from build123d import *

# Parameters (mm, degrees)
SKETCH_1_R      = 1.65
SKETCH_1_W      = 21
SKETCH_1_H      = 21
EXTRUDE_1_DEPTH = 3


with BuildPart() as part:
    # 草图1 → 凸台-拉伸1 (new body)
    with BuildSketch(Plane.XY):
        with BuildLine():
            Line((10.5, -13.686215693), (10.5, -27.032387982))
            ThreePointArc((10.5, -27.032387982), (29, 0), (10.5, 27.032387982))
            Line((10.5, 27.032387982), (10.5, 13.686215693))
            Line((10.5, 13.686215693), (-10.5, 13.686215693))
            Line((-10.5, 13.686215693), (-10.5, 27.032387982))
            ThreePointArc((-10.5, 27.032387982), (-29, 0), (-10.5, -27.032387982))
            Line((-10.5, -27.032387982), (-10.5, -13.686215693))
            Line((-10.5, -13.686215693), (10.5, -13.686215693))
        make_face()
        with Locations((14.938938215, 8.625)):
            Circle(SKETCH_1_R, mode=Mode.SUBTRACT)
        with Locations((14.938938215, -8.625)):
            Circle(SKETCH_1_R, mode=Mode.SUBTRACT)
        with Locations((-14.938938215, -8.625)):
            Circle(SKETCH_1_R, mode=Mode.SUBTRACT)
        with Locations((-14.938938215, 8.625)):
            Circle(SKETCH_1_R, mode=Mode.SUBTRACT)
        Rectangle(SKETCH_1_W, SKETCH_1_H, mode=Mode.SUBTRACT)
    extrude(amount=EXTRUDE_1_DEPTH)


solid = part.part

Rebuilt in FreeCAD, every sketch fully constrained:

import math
import FreeCAD as App
import Part
import Sketcher

V = App.Vector
Q = App.Units.Quantity

doc = App.newDocument("Part")
body = doc.addObject("PartDesign::Body", "Body")

# Sketch on XY plane
sketch1 = body.newObject("Sketcher::SketchObject", "Sketch")
sketch1.AttachmentSupport = (doc.getObject("XY_Plane"), [""])
sketch1.MapMode = "FlatFace"
sketch1.addGeometry([
    Part.LineSegment(V(10.5, -13.7, 0), V(10.5, -27, 0)),  # 0
    Part.ArcOfCircle(Part.Circle(V(0, 0, 0), V(0, 0, 1), 29), math.radians(-69), math.radians(69)),  # 1
    Part.LineSegment(V(10.5, 27, 0), V(10.5, 13.7, 0)),  # 2
    Part.LineSegment(V(10.5, 13.7, 0), V(-10.5, 13.7, 0)),  # 3
    Part.LineSegment(V(-10.5, 13.7, 0), V(-10.5, 27, 0)),  # 4
    Part.ArcOfCircle(Part.Circle(V(0, 0, 0), V(0, 0, 1), 29), math.radians(111), math.radians(249)),  # 5
    Part.LineSegment(V(-10.5, -27, 0), V(-10.5, -13.7, 0)),  # 6
    Part.LineSegment(V(-10.5, -13.7, 0), V(10.5, -13.7, 0)),  # 7
    Part.Circle(V(-14.9, -8.6, 0), V(0, 0, 1), 1.6),  # 8
    Part.Circle(V(14.9, -8.6, 0), V(0, 0, 1), 1.6),  # 9
    Part.Circle(V(-14.9, 8.6, 0), V(0, 0, 1), 1.6),  # 10
    Part.LineSegment(V(10.5, -10.5, 0), V(-10.5, -10.5, 0)),  # 11
    Part.LineSegment(V(-10.5, -10.5, 0), V(-10.5, 10.5, 0)),  # 12
    Part.LineSegment(V(-10.5, 10.5, 0), V(10.5, 10.5, 0)),  # 13
    Part.LineSegment(V(10.5, 10.5, 0), V(10.5, -10.5, 0)),  # 14
    Part.Circle(V(14.9, 8.6, 0), V(0, 0, 1), 1.6),  # 15
], False)
sketch1.addConstraint([
    Sketcher.Constraint("Coincident", 0, 2, 1, 1),
    Sketcher.Constraint("Coincident", 1, 2, 2, 1),
    Sketcher.Constraint("Coincident", 2, 2, 3, 1),
    Sketcher.Constraint("Coincident", 3, 2, 4, 1),
    Sketcher.Constraint("Coincident", 4, 2, 5, 1),
    Sketcher.Constraint("Coincident", 5, 2, 6, 1),
    Sketcher.Constraint("Coincident", 6, 2, 7, 1),
    Sketcher.Constraint("Coincident", 7, 2, 0, 1),
    Sketcher.Constraint("Coincident", 11, 2, 12, 1),
    Sketcher.Constraint("Coincident", 12, 2, 13, 1),
    Sketcher.Constraint("Coincident", 13, 2, 14, 1),
    Sketcher.Constraint("Coincident", 14, 2, 11, 1),
    Sketcher.Constraint("Vertical", 0),
    Sketcher.Constraint("Vertical", 2),
    Sketcher.Constraint("Horizontal", 3),
    Sketcher.Constraint("Vertical", 4),
    Sketcher.Constraint("Vertical", 6),
    Sketcher.Constraint("Horizontal", 7),
    Sketcher.Constraint("Horizontal", 11),
    Sketcher.Constraint("Vertical", 12),
    Sketcher.Constraint("Horizontal", 13),
    Sketcher.Constraint("Vertical", 14),
    Sketcher.Constraint("Coincident", 1, 3, -1, 1),
    Sketcher.Constraint("Coincident", 5, 3, -1, 1),
    Sketcher.Constraint("Equal", 1, 5),
    Sketcher.Constraint("Equal", 8, 9),
    Sketcher.Constraint("Equal", 9, 10),
    Sketcher.Constraint("Equal", 10, 15),
    Sketcher.Constraint("Symmetric", 9, 3, 10, 3, -1, 1),
    Sketcher.Constraint("Symmetric", 8, 3, 15, 3, -1, 1),
    Sketcher.Constraint("Symmetric", 2, 2, 6, 2, -1, 1),
    Sketcher.Constraint("Symmetric", 11, 2, 13, 2, -1, 1),
    Sketcher.Constraint("Symmetric", 8, 3, 9, 3, -2),
    Sketcher.Constraint("Horizontal", 1, 2, 4, 2),
    Sketcher.Constraint("Horizontal", 0, 2, 5, 2),
    Sketcher.Constraint("Vertical", 6, 2, 11, 2),
    Sketcher.Constraint("Equal", 13, 12),
    Sketcher.Constraint("Radius", 1, Q("29 mm")),
    Sketcher.Constraint("Diameter", 8, Q("3.3 mm")),
    Sketcher.Constraint("DistanceX", 3, 2, 3, 1, Q("21 mm")),
    Sketcher.Constraint("DistanceY", 8, 3, 10, 3, Q("17.25 mm")),
    Sketcher.Constraint("DistanceY", 0, 2, 0, 1, Q("13.346172 mm")),
    Sketcher.Constraint("DistanceX", 8, 3, -1, 1, Q("14.938938 mm")),
])
pad1 = body.newObject("PartDesign::Pad", "Pad")
pad1.Profile = sketch1
pad1.Length = 3

doc.recompute()
